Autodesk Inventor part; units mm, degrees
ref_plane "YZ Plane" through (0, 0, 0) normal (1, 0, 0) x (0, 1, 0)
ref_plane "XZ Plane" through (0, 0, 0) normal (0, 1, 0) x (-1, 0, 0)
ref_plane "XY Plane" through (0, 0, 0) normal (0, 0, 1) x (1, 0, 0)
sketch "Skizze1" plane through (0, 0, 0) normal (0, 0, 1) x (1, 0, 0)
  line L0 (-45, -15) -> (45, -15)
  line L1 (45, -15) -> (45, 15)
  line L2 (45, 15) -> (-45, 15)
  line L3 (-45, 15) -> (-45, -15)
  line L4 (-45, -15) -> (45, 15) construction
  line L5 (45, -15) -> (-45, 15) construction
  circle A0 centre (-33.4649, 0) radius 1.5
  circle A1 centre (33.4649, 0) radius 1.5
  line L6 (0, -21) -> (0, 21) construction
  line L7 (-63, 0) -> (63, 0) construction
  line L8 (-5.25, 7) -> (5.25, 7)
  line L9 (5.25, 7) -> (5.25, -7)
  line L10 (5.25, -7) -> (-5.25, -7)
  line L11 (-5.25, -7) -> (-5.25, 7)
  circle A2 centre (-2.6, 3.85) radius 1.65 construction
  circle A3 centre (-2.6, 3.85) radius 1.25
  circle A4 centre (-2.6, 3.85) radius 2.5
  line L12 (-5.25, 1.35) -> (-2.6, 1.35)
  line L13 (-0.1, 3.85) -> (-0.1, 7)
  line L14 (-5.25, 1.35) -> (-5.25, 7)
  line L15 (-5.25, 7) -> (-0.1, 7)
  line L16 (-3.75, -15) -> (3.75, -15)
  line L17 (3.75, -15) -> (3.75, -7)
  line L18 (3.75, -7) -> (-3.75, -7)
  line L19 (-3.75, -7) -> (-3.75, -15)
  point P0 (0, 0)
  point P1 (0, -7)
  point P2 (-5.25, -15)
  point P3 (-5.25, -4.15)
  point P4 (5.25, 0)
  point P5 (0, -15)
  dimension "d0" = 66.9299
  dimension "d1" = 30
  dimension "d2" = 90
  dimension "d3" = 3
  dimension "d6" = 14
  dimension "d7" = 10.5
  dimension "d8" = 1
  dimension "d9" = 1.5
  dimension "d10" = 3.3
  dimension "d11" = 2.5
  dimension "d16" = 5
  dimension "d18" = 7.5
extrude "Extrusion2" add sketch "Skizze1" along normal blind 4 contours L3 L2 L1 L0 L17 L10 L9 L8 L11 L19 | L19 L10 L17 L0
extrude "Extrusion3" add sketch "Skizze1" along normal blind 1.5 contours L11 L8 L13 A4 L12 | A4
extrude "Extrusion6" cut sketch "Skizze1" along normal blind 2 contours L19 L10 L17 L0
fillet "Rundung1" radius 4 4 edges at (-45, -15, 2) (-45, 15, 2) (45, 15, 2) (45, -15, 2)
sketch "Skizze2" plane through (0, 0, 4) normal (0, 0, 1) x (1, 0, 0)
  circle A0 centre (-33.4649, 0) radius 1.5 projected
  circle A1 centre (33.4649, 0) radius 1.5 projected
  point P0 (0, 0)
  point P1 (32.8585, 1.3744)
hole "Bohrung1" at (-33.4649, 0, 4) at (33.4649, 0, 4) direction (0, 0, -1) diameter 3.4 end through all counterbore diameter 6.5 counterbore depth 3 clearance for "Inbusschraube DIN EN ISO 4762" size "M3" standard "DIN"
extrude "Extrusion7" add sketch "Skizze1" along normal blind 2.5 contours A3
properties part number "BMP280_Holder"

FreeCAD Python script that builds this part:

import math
import FreeCAD as App
import Part
import Sketcher

V = App.Vector
Q = App.Units.Quantity


def edges_at(feature, points):
    """Names of the edges that pass closest to the given points."""
    edges = feature.Shape.Edges
    near = lambda p: min(range(len(edges)), key=lambda i: edges[i].distToShape(Part.Vertex(*p))[0])
    return sorted({f"Edge{near(p) + 1}" for p in points})

doc = App.newDocument("Part")
body = doc.addObject("PartDesign::Body", "Body")

sketch1 = body.newObject("Sketcher::SketchObject", "Sketch")
sketch1.AttachmentSupport = (doc.getObject("XY_Plane"), [""])
sketch1.MapMode = "FlatFace"
sketch1.addGeometry([
    Part.LineSegment(V(-45, 15, 0), V(-45, -15, 0)),
    Part.LineSegment(V(-45, -15, 0), V(45, -15, 0)),
    Part.LineSegment(V(45, -15, 0), V(45, 15, 0)),
    Part.LineSegment(V(45, 15, 0), V(-45, 15, 0)),
    Part.LineSegment(V(5.2, -7, 0), V(-5.2, -7, 0)),
    Part.LineSegment(V(-5.2, -7, 0), V(-5.2, 7, 0)),
    Part.LineSegment(V(-5.2, 7, 0), V(5.2, 7, 0)),
    Part.LineSegment(V(5.2, 7, 0), V(5.2, -7, 0)),
    Part.Circle(V(-33.5, 0, 0), V(0, 0, 1), 1.5),
    Part.Circle(V(33.5, 0, 0), V(0, 0, 1), 1.5),
], False)
sketch1.addConstraint([
    Sketcher.Constraint("Coincident", 0, 2, 1, 1),
    Sketcher.Constraint("Coincident", 1, 2, 2, 1),
    Sketcher.Constraint("Coincident", 2, 2, 3, 1),
    Sketcher.Constraint("Coincident", 3, 2, 0, 1),
    Sketcher.Constraint("Coincident", 4, 2, 5, 1),
    Sketcher.Constraint("Coincident", 5, 2, 6, 1),
    Sketcher.Constraint("Coincident", 6, 2, 7, 1),
    Sketcher.Constraint("Coincident", 7, 2, 4, 1),
    Sketcher.Constraint("Vertical", 0),
    Sketcher.Constraint("Horizontal", 1),
    Sketcher.Constraint("Vertical", 2),
    Sketcher.Constraint("Horizontal", 3),
    Sketcher.Constraint("Horizontal", 4),
    Sketcher.Constraint("Vertical", 5),
    Sketcher.Constraint("Horizontal", 6),
    Sketcher.Constraint("Vertical", 7),
    Sketcher.Constraint("Equal", 8, 9),
    Sketcher.Constraint("Symmetric", 8, 3, 9, 3, -1, 1),
    Sketcher.Constraint("Symmetric", 0, 2, 2, 2, -1, 1),
    Sketcher.Constraint("Symmetric", 4, 2, 6, 2, -1, 1),
    Sketcher.Constraint("PointOnObject", 8, 3, -1),
    Sketcher.Constraint("Diameter", 8, Q("3 mm")),
    Sketcher.Constraint("DistanceX", 1, 1, 1, 2, Q("90 mm")),
    Sketcher.Constraint("DistanceY", 0, 2, 0, 1, Q("30 mm")),
    Sketcher.Constraint("DistanceY", 5, 1, 5, 2, Q("14 mm")),
    Sketcher.Constraint("DistanceX", 4, 2, 4, 1, Q("10.5 mm")),
    Sketcher.Constraint("DistanceX", 8, 3, 9, 3, Q("66.9298 mm")),
])
pad1 = body.newObject("PartDesign::Pad", "Pad")
pad1.Profile = sketch1
pad1.Length = 4

sketch2 = body.newObject("Sketcher::SketchObject", "Sketch001")
sketch2.AttachmentSupport = (doc.getObject("XY_Plane"), [""])
sketch2.MapMode = "FlatFace"
sketch2.addGeometry([
    Part.LineSegment(V(-5.2, 7, 0), V(-5.2, 1.4, 0)),
    Part.LineSegment(V(-5.2, 1.4, 0), V(-2.6, 1.4, 0)),
    Part.ArcOfCircle(Part.Circle(V(-2.6, 3.9, 0), V(0, 0, 1), 2.5), math.radians(-90), math.radians(0)),
    Part.LineSegment(V(-0.1, 3.9, 0), V(-0.1, 7, 0)),
    Part.LineSegment(V(-0.1, 7, 0), V(-5.2, 7, 0)),
    Part.Circle(V(-2.6, 3.9, 0), V(0, 0, 1), 1.2),
], False)
sketch2.addConstraint([
    Sketcher.Constraint("Coincident", 0, 2, 1, 1),
    Sketcher.Constraint("Tangent", 1, 2, 2, 1),
    Sketcher.Constraint("Tangent", 2, 2, 3, 1),
    Sketcher.Constraint("Coincident", 3, 2, 4, 1),
    Sketcher.Constraint("Coincident", 4, 2, 0, 1),
    Sketcher.Constraint("Vertical", 0),
    Sketcher.Constraint("Horizontal", 1),
    Sketcher.Constraint("Vertical", 3),
    Sketcher.Constraint("Horizontal", 4),
    Sketcher.Constraint("Coincident", 5, 3, 2, 3),
    Sketcher.Constraint("Diameter", 5, Q("2.5 mm")),
    Sketcher.Constraint("Radius", 2, Q("2.5 mm")),
    Sketcher.Constraint("DistanceY", -1, 1, 3, 2, Q("7 mm")),
    Sketcher.Constraint("DistanceX", 1, 1, 1, 2, Q("2.65 mm")),
    Sketcher.Constraint("DistanceY", 0, 2, 0, 1, Q("5.65 mm")),
    Sketcher.Constraint("DistanceX", 2, 3, -1, 1, Q("2.6 mm")),
])
pad2 = body.newObject("PartDesign::Pad", "Pad001")
pad2.Profile = sketch2
pad2.Length = 1.5

sketch3 = body.newObject("Sketcher::SketchObject", "Sketch002")
sketch3.AttachmentSupport = (doc.getObject("XY_Plane"), [""])
sketch3.MapMode = "FlatFace"
sketch3.addGeometry([
    Part.LineSegment(V(-4, -7, 0), V(-4, -15, 0)),
    Part.LineSegment(V(-4, -15, 0), V(4, -15, 0)),
    Part.LineSegment(V(4, -15, 0), V(4, -7, 0)),
    Part.LineSegment(V(4, -7, 0), V(-4, -7, 0)),
], False)
sketch3.addConstraint([
    Sketcher.Constraint("Coincident", 0, 2, 1, 1),
    Sketcher.Constraint("Coincident", 1, 2, 2, 1),
    Sketcher.Constraint("Coincident", 2, 2, 3, 1),
    Sketcher.Constraint("Coincident", 3, 2, 0, 1),
    Sketcher.Constraint("Vertical", 0),
    Sketcher.Constraint("Horizontal", 1),
    Sketcher.Constraint("Vertical", 2),
    Sketcher.Constraint("Horizontal", 3),
    Sketcher.Constraint("DistanceX", 1, 1, 1, 2, Q("7.5 mm")),
    Sketcher.Constraint("DistanceY", 0, 2, 0, 1, Q("8 mm")),
    Sketcher.Constraint("DistanceY", 0, 2, -1, 1, Q("15 mm")),
    Sketcher.Constraint("DistanceX", 0, 2, -1, 1, Q("3.75 mm")),
])
pocket1 = body.newObject("PartDesign::Pocket", "Pocket")
pocket1.Profile = sketch3
pocket1.Length = 2
pocket1.Reversed = True
doc.recompute()

fillet = body.newObject("PartDesign::Fillet", "Fillet")
fillet.Base = (pocket1, edges_at(pocket1, [
    (-45, -15, 2),
    (-45, 15, 2),
    (45, 15, 2),
    (45, -15, 2),
]))
fillet.Radius = 4

sketch4 = body.newObject("Sketcher::SketchObject", "Sketch003")
sketch4.AttachmentSupport = (doc.getObject("XY_Plane"), [""])
sketch4.MapMode = "FlatFace"
sketch4.AttachmentOffset = App.Placement(V(0, 0, 4), App.Rotation())
sketch4.addGeometry([
    Part.Circle(V(-33.5, 0, 0), V(0, 0, 1), 1.7),
    Part.Circle(V(33.5, 0, 0), V(0, 0, 1), 1.7),
], False)
sketch4.addConstraint([
    Sketcher.Constraint("Equal", 0, 1),
    Sketcher.Constraint("Symmetric", 0, 3, 1, 3, -1, 1),
    Sketcher.Constraint("PointOnObject", 0, 3, -1),
    Sketcher.Constraint("Diameter", 0, Q("3.4 mm")),
    Sketcher.Constraint("DistanceX", 0, 3, -1, 1, Q("33.465 mm")),
])
doc.recompute()
hole = body.newObject("PartDesign::Hole", "Hole")
hole.Profile = sketch4
hole.ThreadType = "None"
hole.Diameter = 3.4
hole.DepthType = "ThroughAll"
hole.HoleCutType = "Counterbore"
hole.HoleCutDiameter = 6.5
hole.HoleCutDepth = 3

sketch5 = body.newObject("Sketcher::SketchObject", "Sketch004")
sketch5.AttachmentSupport = (doc.getObject("XY_Plane"), [""])
sketch5.MapMode = "FlatFace"
sketch5.addGeometry(Part.Circle(V(-2.6, 3.9, 0), V(0, 0, 1), 1.2), False)
sketch5.addConstraint([
    Sketcher.Constraint("Diameter", 0, Q("2.5 mm")),
    Sketcher.Constraint("DistanceX", 0, 3, -1, 1, Q("2.6 mm")),
    Sketcher.Constraint("DistanceY", -1, 1, 0, 3, Q("3.85 mm")),
])
pad3 = body.newObject("PartDesign::Pad", "Pad002")
pad3.Profile = sketch5
pad3.Length = 2.5

doc.recompute()
